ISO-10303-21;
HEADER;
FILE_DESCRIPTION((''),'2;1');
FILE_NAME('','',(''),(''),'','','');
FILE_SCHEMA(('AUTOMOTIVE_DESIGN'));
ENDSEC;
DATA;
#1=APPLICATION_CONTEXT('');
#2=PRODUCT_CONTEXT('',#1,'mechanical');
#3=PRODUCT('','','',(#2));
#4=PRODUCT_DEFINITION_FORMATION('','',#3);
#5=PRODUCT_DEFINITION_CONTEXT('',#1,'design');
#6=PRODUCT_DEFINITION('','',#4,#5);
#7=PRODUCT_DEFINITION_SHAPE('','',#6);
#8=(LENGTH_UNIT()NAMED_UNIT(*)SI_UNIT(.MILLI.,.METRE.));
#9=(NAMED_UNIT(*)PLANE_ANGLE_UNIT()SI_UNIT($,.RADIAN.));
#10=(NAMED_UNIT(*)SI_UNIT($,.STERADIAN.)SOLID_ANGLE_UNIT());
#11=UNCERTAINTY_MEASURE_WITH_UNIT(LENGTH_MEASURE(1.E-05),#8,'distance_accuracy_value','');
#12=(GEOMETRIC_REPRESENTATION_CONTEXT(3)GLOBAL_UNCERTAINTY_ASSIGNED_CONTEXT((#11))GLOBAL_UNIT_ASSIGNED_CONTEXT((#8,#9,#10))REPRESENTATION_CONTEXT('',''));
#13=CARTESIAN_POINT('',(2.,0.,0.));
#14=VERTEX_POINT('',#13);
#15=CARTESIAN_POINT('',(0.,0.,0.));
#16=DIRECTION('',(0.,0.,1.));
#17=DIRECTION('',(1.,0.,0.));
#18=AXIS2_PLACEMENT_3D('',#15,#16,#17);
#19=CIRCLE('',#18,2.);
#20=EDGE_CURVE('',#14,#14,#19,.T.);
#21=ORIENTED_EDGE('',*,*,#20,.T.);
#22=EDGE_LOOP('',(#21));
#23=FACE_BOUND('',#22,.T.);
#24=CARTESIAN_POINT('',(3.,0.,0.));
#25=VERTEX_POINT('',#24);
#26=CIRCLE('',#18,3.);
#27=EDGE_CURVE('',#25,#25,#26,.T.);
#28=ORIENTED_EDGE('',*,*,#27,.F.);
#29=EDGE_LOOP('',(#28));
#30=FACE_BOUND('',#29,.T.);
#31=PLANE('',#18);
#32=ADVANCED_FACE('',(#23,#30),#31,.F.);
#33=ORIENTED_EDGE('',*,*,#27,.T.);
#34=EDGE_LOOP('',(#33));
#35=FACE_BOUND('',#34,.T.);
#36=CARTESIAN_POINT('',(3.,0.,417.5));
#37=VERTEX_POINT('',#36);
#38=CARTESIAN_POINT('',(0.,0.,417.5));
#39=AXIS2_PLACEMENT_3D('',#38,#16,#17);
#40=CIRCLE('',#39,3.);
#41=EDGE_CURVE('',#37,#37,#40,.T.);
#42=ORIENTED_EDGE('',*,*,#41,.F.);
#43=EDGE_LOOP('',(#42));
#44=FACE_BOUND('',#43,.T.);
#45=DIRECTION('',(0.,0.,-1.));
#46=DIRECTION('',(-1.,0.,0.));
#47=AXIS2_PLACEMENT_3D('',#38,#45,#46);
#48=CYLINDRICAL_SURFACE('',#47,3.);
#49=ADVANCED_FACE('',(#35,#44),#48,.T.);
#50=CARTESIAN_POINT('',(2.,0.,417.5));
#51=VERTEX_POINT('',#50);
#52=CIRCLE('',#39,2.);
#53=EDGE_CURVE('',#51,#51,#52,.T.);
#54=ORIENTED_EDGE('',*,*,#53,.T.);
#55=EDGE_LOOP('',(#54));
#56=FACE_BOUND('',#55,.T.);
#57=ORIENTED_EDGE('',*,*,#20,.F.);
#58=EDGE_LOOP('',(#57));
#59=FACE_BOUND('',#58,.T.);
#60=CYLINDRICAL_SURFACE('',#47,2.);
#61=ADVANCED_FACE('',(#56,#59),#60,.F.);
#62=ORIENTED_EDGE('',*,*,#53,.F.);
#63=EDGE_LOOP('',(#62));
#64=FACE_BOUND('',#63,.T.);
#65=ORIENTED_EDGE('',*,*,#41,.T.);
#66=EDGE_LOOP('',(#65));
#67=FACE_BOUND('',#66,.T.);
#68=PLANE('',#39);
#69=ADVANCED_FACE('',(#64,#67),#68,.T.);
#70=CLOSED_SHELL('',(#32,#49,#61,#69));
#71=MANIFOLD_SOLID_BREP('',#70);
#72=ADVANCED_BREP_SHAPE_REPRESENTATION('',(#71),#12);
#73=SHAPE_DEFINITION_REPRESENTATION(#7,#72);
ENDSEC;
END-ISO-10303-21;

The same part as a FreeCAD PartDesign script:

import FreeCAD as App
import Part
import Sketcher

V = App.Vector

doc = App.newDocument("Part")
body = doc.addObject("PartDesign::Body", "Body")

# Sketch on XY plane
sketch1 = body.newObject("Sketcher::SketchObject", "Sketch")
sketch1.AttachmentSupport = (doc.getObject("XY_Plane"), [""])
sketch1.MapMode = "FlatFace"
sketch1.addGeometry(Part.Circle(V(0, 0, 0), V(0, 0, 1), 3), False)
sketch1.addConstraint(Sketcher.Constraint("Coincident", 0, 3, -1, 1))
sketch1.addConstraint(Sketcher.Constraint("Diameter", 0, 6.0))
pad1 = body.newObject("PartDesign::Pad", "Pad")
pad1.Profile = sketch1
pad1.Length = 417.5

# Sketch on XY plane
sketch2 = body.newObject("Sketcher::SketchObject", "Sketch001")
sketch2.AttachmentSupport = (doc.getObject("XY_Plane"), [""])
sketch2.MapMode = "FlatFace"
sketch2.addGeometry(Part.Circle(V(0, 0, 0), V(0, 0, 1), 2), False)
sketch2.addConstraint(Sketcher.Constraint("Coincident", 0, 3, -1, 1))
sketch2.addConstraint(Sketcher.Constraint("Diameter", 0, 4.0))
pocket1 = body.newObject("PartDesign::Pocket", "Pocket")
pocket1.Profile = sketch2
pocket1.Type = "ThroughAll"
pocket1.Reversed = True

doc.recompute()
